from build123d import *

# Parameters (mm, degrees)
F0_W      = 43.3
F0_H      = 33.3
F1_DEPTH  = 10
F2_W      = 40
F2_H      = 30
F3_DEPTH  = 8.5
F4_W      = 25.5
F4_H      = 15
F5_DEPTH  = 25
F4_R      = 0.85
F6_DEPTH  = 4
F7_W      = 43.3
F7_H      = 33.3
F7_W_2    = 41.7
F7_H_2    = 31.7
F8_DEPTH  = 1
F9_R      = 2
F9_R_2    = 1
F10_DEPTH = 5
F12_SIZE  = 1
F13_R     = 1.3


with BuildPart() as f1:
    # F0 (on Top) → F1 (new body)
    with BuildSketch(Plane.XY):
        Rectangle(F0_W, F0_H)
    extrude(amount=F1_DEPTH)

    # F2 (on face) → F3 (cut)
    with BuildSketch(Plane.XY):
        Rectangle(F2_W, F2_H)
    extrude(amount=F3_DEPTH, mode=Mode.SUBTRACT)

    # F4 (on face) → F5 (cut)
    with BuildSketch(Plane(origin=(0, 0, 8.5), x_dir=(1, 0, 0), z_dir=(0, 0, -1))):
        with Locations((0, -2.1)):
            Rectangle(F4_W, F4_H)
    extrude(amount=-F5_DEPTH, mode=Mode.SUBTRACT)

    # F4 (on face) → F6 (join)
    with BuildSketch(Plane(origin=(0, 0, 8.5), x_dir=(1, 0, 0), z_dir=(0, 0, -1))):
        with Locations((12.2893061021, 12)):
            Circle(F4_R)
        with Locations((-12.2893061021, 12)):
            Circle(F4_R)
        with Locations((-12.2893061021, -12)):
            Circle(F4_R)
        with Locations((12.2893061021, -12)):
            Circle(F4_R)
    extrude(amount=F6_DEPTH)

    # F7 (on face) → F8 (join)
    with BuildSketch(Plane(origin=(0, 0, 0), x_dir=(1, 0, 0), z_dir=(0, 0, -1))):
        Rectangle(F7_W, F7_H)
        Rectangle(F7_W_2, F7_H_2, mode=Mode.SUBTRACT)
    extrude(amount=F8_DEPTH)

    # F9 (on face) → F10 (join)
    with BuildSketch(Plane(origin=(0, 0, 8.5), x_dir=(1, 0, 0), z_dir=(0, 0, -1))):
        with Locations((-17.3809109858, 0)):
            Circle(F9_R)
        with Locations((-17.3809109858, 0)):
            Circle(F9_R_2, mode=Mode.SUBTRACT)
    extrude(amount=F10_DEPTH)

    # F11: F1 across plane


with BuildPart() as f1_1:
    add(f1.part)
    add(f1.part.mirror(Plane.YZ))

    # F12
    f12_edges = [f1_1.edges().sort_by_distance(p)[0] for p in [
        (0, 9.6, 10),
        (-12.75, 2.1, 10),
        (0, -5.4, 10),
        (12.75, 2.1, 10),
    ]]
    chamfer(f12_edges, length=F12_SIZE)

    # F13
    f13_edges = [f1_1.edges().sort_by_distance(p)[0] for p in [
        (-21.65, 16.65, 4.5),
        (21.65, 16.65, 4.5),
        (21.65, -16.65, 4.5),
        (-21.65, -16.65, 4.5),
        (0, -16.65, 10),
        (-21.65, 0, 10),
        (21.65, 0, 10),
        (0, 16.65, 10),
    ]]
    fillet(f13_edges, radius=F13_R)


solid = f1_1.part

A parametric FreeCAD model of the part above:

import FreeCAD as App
import Part
import Sketcher
from FreeCAD import Vector
Q = App.Units.Quantity


def edges_at(feature, points):
    """Names of the edges that pass closest to the given points."""
    edges = feature.Shape.Edges
    near = lambda p: min(range(len(edges)), key=lambda i: edges[i].distToShape(Part.Vertex(*p))[0])
    return sorted({f"Edge{near(p) + 1}" for p in points})

doc = App.newDocument("Part")
body = doc.addObject("PartDesign::Body", "Body")

# Sketch on XY plane
sketch1 = body.newObject("Sketcher::SketchObject", "Sketch")
sketch1.AttachmentSupport = (doc.getObject("XY_Plane"), [""])
sketch1.MapMode = "FlatFace"
sketch1.addGeometry(Part.LineSegment(Vector(-22, 17, 0), Vector(-22, -17, 0)), False)
sketch1.addGeometry(Part.LineSegment(Vector(-22, -17, 0), Vector(22, -17, 0)), False)
sketch1.addGeometry(Part.LineSegment(Vector(22, -17, 0), Vector(22, 17, 0)), False)
sketch1.addGeometry(Part.LineSegment(Vector(22, 17, 0), Vector(-22, 17, 0)), False)
sketch1.addConstraint(Sketcher.Constraint("Coincident", 0, 2, 1, 1))
sketch1.addConstraint(Sketcher.Constraint("Coincident", 1, 2, 2, 1))
sketch1.addConstraint(Sketcher.Constraint("Coincident", 2, 2, 3, 1))
sketch1.addConstraint(Sketcher.Constraint("Coincident", 3, 2, 0, 1))
sketch1.addConstraint(Sketcher.Constraint("Vertical", 0))
sketch1.addConstraint(Sketcher.Constraint("Horizontal", 1))
sketch1.addConstraint(Sketcher.Constraint("Vertical", 2))
sketch1.addConstraint(Sketcher.Constraint("Horizontal", 3))
sketch1.addConstraint(Sketcher.Constraint("Symmetric", 0, 2, 2, 2, -1, 1))
sketch1.addConstraint(Sketcher.Constraint("DistanceX", 1, 1, 1, 2, Q("43.3 mm")))
sketch1.addConstraint(Sketcher.Constraint("DistanceY", 0, 2, 0, 1, Q("33.3 mm")))
pad1 = body.newObject("PartDesign::Pad", "Pad")
pad1.Profile = sketch1
pad1.Length = 10

# Sketch on XY plane
sketch2 = body.newObject("Sketcher::SketchObject", "Sketch001")
sketch2.AttachmentSupport = (doc.getObject("XY_Plane"), [""])
sketch2.MapMode = "FlatFace"
sketch2.addGeometry(Part.LineSegment(Vector(-20, 15, 0), Vector(-20, -15, 0)), False)
sketch2.addGeometry(Part.LineSegment(Vector(-20, -15, 0), Vector(20, -15, 0)), False)
sketch2.addGeometry(Part.LineSegment(Vector(20, -15, 0), Vector(20, 15, 0)), False)
sketch2.addGeometry(Part.LineSegment(Vector(20, 15, 0), Vector(-20, 15, 0)), False)
sketch2.addConstraint(Sketcher.Constraint("Coincident", 0, 2, 1, 1))
sketch2.addConstraint(Sketcher.Constraint("Coincident", 1, 2, 2, 1))
sketch2.addConstraint(Sketcher.Constraint("Coincident", 2, 2, 3, 1))
sketch2.addConstraint(Sketcher.Constraint("Coincident", 3, 2, 0, 1))
sketch2.addConstraint(Sketcher.Constraint("Vertical", 0))
sketch2.addConstraint(Sketcher.Constraint("Horizontal", 1))
sketch2.addConstraint(Sketcher.Constraint("Vertical", 2))
sketch2.addConstraint(Sketcher.Constraint("Horizontal", 3))
sketch2.addConstraint(Sketcher.Constraint("Symmetric", 0, 2, 2, 2, -1, 1))
sketch2.addConstraint(Sketcher.Constraint("DistanceX", 1, 1, 1, 2, Q("40 mm")))
sketch2.addConstraint(Sketcher.Constraint("DistanceY", 0, 2, 0, 1, Q("30 mm")))
pocket1 = body.newObject("PartDesign::Pocket", "Pocket")
pocket1.Profile = sketch2
pocket1.Length = 8.5
pocket1.Reversed = True

# Sketch on XY plane
sketch3 = body.newObject("Sketcher::SketchObject", "Sketch002")
sketch3.AttachmentSupport = (doc.getObject("XY_Plane"), [""])
sketch3.MapMode = "FlatFace"
sketch3.AttachmentOffset = App.Placement(Vector(0, 0, 8.5), App.Rotation())
sketch3.addGeometry(Part.LineSegment(Vector(-13, -5, 0), Vector(-13, 10, 0)), False)
sketch3.addGeometry(Part.LineSegment(Vector(-13, 10, 0), Vector(13, 10, 0)), False)
sketch3.addGeometry(Part.LineSegment(Vector(13, 10, 0), Vector(13, -5, 0)), False)
sketch3.addGeometry(Part.LineSegment(Vector(13, -5, 0), Vector(-13, -5, 0)), False)
sketch3.addConstraint(Sketcher.Constraint("Coincident", 0, 2, 1, 1))
sketch3.addConstraint(Sketcher.Constraint("Coincident", 1, 2, 2, 1))
sketch3.addConstraint(Sketcher.Constraint("Coincident", 2, 2, 3, 1))
sketch3.addConstraint(Sketcher.Constraint("Coincident", 3, 2, 0, 1))
sketch3.addConstraint(Sketcher.Constraint("Vertical", 0))
sketch3.addConstraint(Sketcher.Constraint("Horizontal", 1))
sketch3.addConstraint(Sketcher.Constraint("Vertical", 2))
sketch3.addConstraint(Sketcher.Constraint("Horizontal", 3))
sketch3.addConstraint(Sketcher.Constraint("DistanceY", 0, 1, 0, 2, Q("15 mm")))
sketch3.addConstraint(Sketcher.Constraint("DistanceX", 1, 1, 1, 2, Q("25.5 mm")))
sketch3.addConstraint(Sketcher.Constraint("DistanceY", -1, 1, 0, 2, Q("9.6 mm")))
sketch3.addConstraint(Sketcher.Constraint("DistanceX", 0, 2, -1, 1, Q("12.75 mm")))
pocket2 = body.newObject("PartDesign::Pocket", "Pocket001")
pocket2.Profile = sketch3
pocket2.Length = 25
pocket2.Reversed = True

# Sketch on XY plane
sketch4 = body.newObject("Sketcher::SketchObject", "Sketch003")
sketch4.AttachmentSupport = (doc.getObject("XY_Plane"), [""])
sketch4.MapMode = "FlatFace"
sketch4.AttachmentOffset = App.Placement(Vector(0, 0, 8.5), App.Rotation())
sketch4.addGeometry(Part.Circle(Vector(12.3, -12, 0), Vector(0, 0, 1), 0.8), False)
sketch4.addGeometry(Part.Circle(Vector(-12.3, -12, 0), Vector(0, 0, 1), 0.8), False)
sketch4.addGeometry(Part.Circle(Vector(-12.3, 12, 0), Vector(0, 0, 1), 0.8), False)
sketch4.addGeometry(Part.Circle(Vector(12.3, 12, 0), Vector(0, 0, 1), 0.8), False)
sketch4.addConstraint(Sketcher.Constraint("Equal", 0, 1))
sketch4.addConstraint(Sketcher.Constraint("Equal", 1, 2))
sketch4.addConstraint(Sketcher.Constraint("Equal", 2, 3))
sketch4.addConstraint(Sketcher.Constraint("Symmetric", 0, 3, 2, 3, -1, 1))
sketch4.addConstraint(Sketcher.Constraint("Symmetric", 1, 3, 3, 3, -1, 1))
sketch4.addConstraint(Sketcher.Constraint("Symmetric", 0, 3, 1, 3, -2))
sketch4.addConstraint(Sketcher.Constraint("Diameter", 0, Q("1.7 mm")))
sketch4.addConstraint(Sketcher.Constraint("DistanceY", 0, 3, -1, 1, Q("12 mm")))
sketch4.addConstraint(Sketcher.Constraint("DistanceX", -1, 1, 0, 3, Q("12.289306 mm")))
pad2 = body.newObject("PartDesign::Pad", "Pad001")
pad2.Profile = sketch4
pad2.Length = 4
pad2.Reversed = True

# Sketch on XY plane
sketch5 = body.newObject("Sketcher::SketchObject", "Sketch004")
sketch5.AttachmentSupport = (doc.getObject("XY_Plane"), [""])
sketch5.MapMode = "FlatFace"
sketch5.addGeometry(Part.LineSegment(Vector(-22, -17, 0), Vector(-22, 17, 0)), False)
sketch5.addGeometry(Part.LineSegment(Vector(-22, 17, 0), Vector(22, 17, 0)), False)
sketch5.addGeometry(Part.LineSegment(Vector(22, 17, 0), Vector(22, -17, 0)), False)
sketch5.addGeometry(Part.LineSegment(Vector(22, -17, 0), Vector(-22, -17, 0)), False)
sketch5.addGeometry(Part.LineSegment(Vector(21, 16, 0), Vector(-21, 16, 0)), False)
sketch5.addGeometry(Part.LineSegment(Vector(-21, 16, 0), Vector(-21, -16, 0)), False)
sketch5.addGeometry(Part.LineSegment(Vector(-21, -16, 0), Vector(21, -16, 0)), False)
sketch5.addGeometry(Part.LineSegment(Vector(21, -16, 0), Vector(21, 16, 0)), False)
sketch5.addConstraint(Sketcher.Constraint("Coincident", 0, 2, 1, 1))
sketch5.addConstraint(Sketcher.Constraint("Coincident", 1, 2, 2, 1))
sketch5.addConstraint(Sketcher.Constraint("Coincident", 2, 2, 3, 1))
sketch5.addConstraint(Sketcher.Constraint("Coincident", 3, 2, 0, 1))
sketch5.addConstraint(Sketcher.Constraint("Coincident", 4, 2, 5, 1))
sketch5.addConstraint(Sketcher.Constraint("Coincident", 5, 2, 6, 1))
sketch5.addConstraint(Sketcher.Constraint("Coincident", 6, 2, 7, 1))
sketch5.addConstraint(Sketcher.Constraint("Coincident", 7, 2, 4, 1))
sketch5.addConstraint(Sketcher.Constraint("Vertical", 0))
sketch5.addConstraint(Sketcher.Constraint("Horizontal", 1))
sketch5.addConstraint(Sketcher.Constraint("Vertical", 2))
sketch5.addConstraint(Sketcher.Constraint("Horizontal", 3))
sketch5.addConstraint(Sketcher.Constraint("Horizontal", 4))
sketch5.addConstraint(Sketcher.Constraint("Vertical", 5))
sketch5.addConstraint(Sketcher.Constraint("Horizontal", 6))
sketch5.addConstraint(Sketcher.Constraint("Vertical", 7))
sketch5.addConstraint(Sketcher.Constraint("Symmetric", 0, 2, 2, 2, -1, 1))
sketch5.addConstraint(Sketcher.Constraint("Symmetric", 4, 2, 6, 2, -1, 1))
sketch5.addConstraint(Sketcher.Constraint("DistanceX", 1, 1, 1, 2, Q("43.3 mm")))
sketch5.addConstraint(Sketcher.Constraint("DistanceX", 4, 2, 4, 1, Q("41.7 mm")))
sketch5.addConstraint(Sketcher.Constraint("DistanceY", 0, 1, 0, 2, Q("33.3 mm")))
sketch5.addConstraint(Sketcher.Constraint("DistanceY", 5, 2, 5, 1, Q("31.7 mm")))
pad3 = body.newObject("PartDesign::Pad", "Pad002")
pad3.Profile = sketch5
pad3.Length = 1
pad3.Reversed = True

# Sketch on XY plane
sketch6 = body.newObject("Sketcher::SketchObject", "Sketch005")
sketch6.AttachmentSupport = (doc.getObject("XY_Plane"), [""])
sketch6.MapMode = "FlatFace"
sketch6.AttachmentOffset = App.Placement(Vector(0, 0, 8.5), App.Rotation())
sketch6.addGeometry(Part.Circle(Vector(-17.4, 0, 0), Vector(0, 0, 1), 2), False)
sketch6.addGeometry(Part.Circle(Vector(-17.4, 0, 0), Vector(0, 0, 1), 1), False)
sketch6.addConstraint(Sketcher.Constraint("Coincident", 1, 3, 0, 3))
sketch6.addConstraint(Sketcher.Constraint("PointOnObject", 0, 3, -1))
sketch6.addConstraint(Sketcher.Constraint("Diameter", 0, Q("4 mm")))
sketch6.addConstraint(Sketcher.Constraint("Diameter", 1, Q("2 mm")))
sketch6.addConstraint(Sketcher.Constraint("DistanceX", 0, 3, -1, 1, Q("17.380911 mm")))
pad4 = body.newObject("PartDesign::Pad", "Pad003")
pad4.Profile = sketch6
pad4.Length = 5
pad4.Reversed = True
body2 = doc.addObject("PartDesign::Body", "Body001")
doc.recompute()

body2.BaseFeature = body
doc.recompute()

mirroring = doc.addObject("Part::Mirroring", "Mirroring")
mirroring.Source = body
mirroring.Base = Vector(0, 0, 0)
mirroring.Normal = Vector(1, 0, 0)
body3 = doc.addObject("PartDesign::Body", "Body002")
body3.BaseFeature = mirroring
boolean = body2.newObject("PartDesign::Boolean", "Boolean")
boolean.Type = "Fuse"
boolean.addObjects([body3])
doc.recompute()

chamfer = body2.newObject("PartDesign::Chamfer", "Chamfer")
chamfer.Base = (boolean, edges_at(boolean, [
    (0, 9.6, 10),
    (-12.75, 2.1, 10),
    (0, -5.4, 10),
    (12.75, 2.1, 10),
]))
chamfer.Size = 1
doc.recompute()

fillet = body2.newObject("PartDesign::Fillet", "Fillet")
fillet.Base = (chamfer, edges_at(chamfer, [
    (-21.65, 16.65, 4.5),
    (21.65, 16.65, 4.5),
    (21.65, -16.65, 4.5),
    (-21.65, -16.65, 4.5),
    (0, -16.65, 10),
    (-21.65, 0, 10),
    (21.65, 0, 10),
    (0, 16.65, 10),
]))
fillet.Radius = 1.3
mirroring.Visibility = False

doc.recompute()
